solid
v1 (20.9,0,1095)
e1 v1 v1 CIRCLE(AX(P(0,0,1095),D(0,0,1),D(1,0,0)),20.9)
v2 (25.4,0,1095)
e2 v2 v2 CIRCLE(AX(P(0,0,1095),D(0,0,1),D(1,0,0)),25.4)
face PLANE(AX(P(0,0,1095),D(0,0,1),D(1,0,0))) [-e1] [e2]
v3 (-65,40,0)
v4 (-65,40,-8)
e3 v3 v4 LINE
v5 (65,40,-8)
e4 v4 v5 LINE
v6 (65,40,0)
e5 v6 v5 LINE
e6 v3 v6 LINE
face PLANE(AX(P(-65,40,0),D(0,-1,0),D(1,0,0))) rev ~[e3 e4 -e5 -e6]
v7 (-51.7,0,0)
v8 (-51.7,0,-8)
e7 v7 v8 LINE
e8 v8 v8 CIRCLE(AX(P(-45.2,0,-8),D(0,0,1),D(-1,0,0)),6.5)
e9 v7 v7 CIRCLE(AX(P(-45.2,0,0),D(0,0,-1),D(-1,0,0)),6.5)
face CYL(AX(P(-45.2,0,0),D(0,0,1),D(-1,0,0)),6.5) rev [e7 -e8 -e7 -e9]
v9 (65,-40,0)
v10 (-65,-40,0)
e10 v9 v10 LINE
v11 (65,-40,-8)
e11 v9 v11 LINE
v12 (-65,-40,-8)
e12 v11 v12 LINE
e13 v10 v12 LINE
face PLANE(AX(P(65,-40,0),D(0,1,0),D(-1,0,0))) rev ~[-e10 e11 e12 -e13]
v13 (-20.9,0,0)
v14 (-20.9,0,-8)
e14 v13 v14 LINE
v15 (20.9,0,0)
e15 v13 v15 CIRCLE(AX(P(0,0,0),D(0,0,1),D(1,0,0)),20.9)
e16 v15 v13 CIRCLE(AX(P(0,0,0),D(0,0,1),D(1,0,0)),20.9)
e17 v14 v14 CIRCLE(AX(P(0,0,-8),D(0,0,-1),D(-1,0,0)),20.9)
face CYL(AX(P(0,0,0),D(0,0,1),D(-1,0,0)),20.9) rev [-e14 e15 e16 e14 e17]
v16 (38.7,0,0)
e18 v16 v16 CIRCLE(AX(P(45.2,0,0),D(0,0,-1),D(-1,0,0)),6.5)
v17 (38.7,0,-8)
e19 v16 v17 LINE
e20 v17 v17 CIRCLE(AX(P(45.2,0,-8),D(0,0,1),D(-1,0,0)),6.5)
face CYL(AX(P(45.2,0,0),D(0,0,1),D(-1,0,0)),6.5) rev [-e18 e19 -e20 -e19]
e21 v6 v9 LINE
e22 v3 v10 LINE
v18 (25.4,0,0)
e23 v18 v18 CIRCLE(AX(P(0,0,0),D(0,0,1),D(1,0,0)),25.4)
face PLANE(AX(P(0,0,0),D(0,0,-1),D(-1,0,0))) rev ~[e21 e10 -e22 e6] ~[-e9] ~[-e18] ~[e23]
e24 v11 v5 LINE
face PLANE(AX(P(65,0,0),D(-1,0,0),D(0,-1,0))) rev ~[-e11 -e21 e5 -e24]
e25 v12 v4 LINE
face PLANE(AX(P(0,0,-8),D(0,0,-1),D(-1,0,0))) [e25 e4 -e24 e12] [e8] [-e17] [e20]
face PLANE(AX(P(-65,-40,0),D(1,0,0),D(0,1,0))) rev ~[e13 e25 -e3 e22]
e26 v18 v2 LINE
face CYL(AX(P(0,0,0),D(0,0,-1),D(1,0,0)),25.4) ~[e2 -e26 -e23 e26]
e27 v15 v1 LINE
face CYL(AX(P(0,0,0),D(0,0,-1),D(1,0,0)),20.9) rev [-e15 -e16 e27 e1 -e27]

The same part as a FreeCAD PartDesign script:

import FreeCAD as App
import Part
import Sketcher

V = App.Vector
Q = App.Units.Quantity

doc = App.newDocument("Part")
params = doc.addObject("Spreadsheet::Sheet", "Params")
for row, (alias, value) in enumerate([
    ("sketch1_diameter", "50.8 mm"),
    ("sketch1_diameter2", "41.8 mm"),
    ("pad1_length", "1095 mm"),
    ("sketch2_diameter", "13 mm"),
    ("sketch2_width", "130 mm"),
    ("sketch2_height", "80 mm"),
    ("sketch2_diameter2", "41.8 mm"),
    ("pad2_length", "8 mm"),
], start=1):
    params.set(f"A{row}", alias)
    params.set(f"B{row}", "=" + value)
    params.setAlias(f"B{row}", alias)

body = doc.addObject("PartDesign::Body", "Body")

# Sketch on XY plane
sketch1 = body.newObject("Sketcher::SketchObject", "Sketch")
sketch1.AttachmentSupport = (doc.getObject("XY_Plane"), [""])
sketch1.MapMode = "FlatFace"
sketch1.addGeometry(Part.Circle(V(0, 0, 0), V(0, 0, 1), 25.4), False)
sketch1.addGeometry(Part.Circle(V(0, 0, 0), V(0, 0, 1), 20.9), False)
sketch1.addConstraint(Sketcher.Constraint("Coincident", 0, 3, -1, 1))
sketch1.addConstraint(Sketcher.Constraint("Coincident", 1, 3, -1, 1))
sketch1.addConstraint(Sketcher.Constraint("Diameter", 0, Q("50.8 mm")))
sketch1.addConstraint(Sketcher.Constraint("Diameter", 1, Q("41.8 mm")))
sketch1.setExpression("Constraints[2]", "Params.sketch1_diameter")
sketch1.setExpression("Constraints[3]", "Params.sketch1_diameter2")
pad1 = body.newObject("PartDesign::Pad", "Pad")
pad1.Profile = sketch1
pad1.setExpression("Length", "Params.pad1_length")

# Sketch on XY plane
sketch2 = body.newObject("Sketcher::SketchObject", "Sketch001")
sketch2.AttachmentSupport = (doc.getObject("XY_Plane"), [""])
sketch2.MapMode = "FlatFace"
sketch2.addGeometry(Part.LineSegment(V(65, -40, 0), V(-65, -40, 0)), False)
sketch2.addGeometry(Part.LineSegment(V(-65, -40, 0), V(-65, 40, 0)), False)
sketch2.addGeometry(Part.LineSegment(V(-65, 40, 0), V(65, 40, 0)), False)
sketch2.addGeometry(Part.LineSegment(V(65, 40, 0), V(65, -40, 0)), False)
sketch2.addGeometry(Part.Circle(V(45.2, 0, 0), V(0, 0, 1), 6.5), False)
sketch2.addGeometry(Part.Circle(V(-45.2, 0, 0), V(0, 0, 1), 6.5), False)
sketch2.addGeometry(Part.Circle(V(0, 0, 0), V(0, 0, 1), 20.9), False)
sketch2.addConstraint(Sketcher.Constraint("Coincident", 0, 2, 1, 1))
sketch2.addConstraint(Sketcher.Constraint("Coincident", 1, 2, 2, 1))
sketch2.addConstraint(Sketcher.Constraint("Coincident", 2, 2, 3, 1))
sketch2.addConstraint(Sketcher.Constraint("Coincident", 3, 2, 0, 1))
sketch2.addConstraint(Sketcher.Constraint("Horizontal", 0))
sketch2.addConstraint(Sketcher.Constraint("Vertical", 1))
sketch2.addConstraint(Sketcher.Constraint("Horizontal", 2))
sketch2.addConstraint(Sketcher.Constraint("Vertical", 3))
sketch2.addConstraint(Sketcher.Constraint("Coincident", 6, 3, -1, 1))
sketch2.addConstraint(Sketcher.Constraint("Equal", 4, 5))
sketch2.addConstraint(Sketcher.Constraint("Symmetric", 4, 3, 5, 3, -1, 1))
sketch2.addConstraint(Sketcher.Constraint("Symmetric", 0, 2, 2, 2, -1, 1))
sketch2.addConstraint(Sketcher.Constraint("PointOnObject", 4, 3, -1))
sketch2.addConstraint(Sketcher.Constraint("Diameter", 4, Q("13 mm")))
sketch2.addConstraint(Sketcher.Constraint("DistanceX", 0, 2, 0, 1, Q("130 mm")))
sketch2.addConstraint(Sketcher.Constraint("DistanceY", 1, 1, 1, 2, Q("80 mm")))
sketch2.addConstraint(Sketcher.Constraint("Diameter", 6, Q("41.8 mm")))
sketch2.addConstraint(Sketcher.Constraint("DistanceX", -1, 1, 4, 3, Q("45.2 mm")))
sketch2.setExpression("Constraints[13]", "Params.sketch2_diameter")
sketch2.setExpression("Constraints[14]", "Params.sketch2_width")
sketch2.setExpression("Constraints[15]", "Params.sketch2_height")
sketch2.setExpression("Constraints[16]", "Params.sketch2_diameter2")
pad2 = body.newObject("PartDesign::Pad", "Pad001")
pad2.Profile = sketch2
pad2.setExpression("Length", "Params.pad2_length")
pad2.Reversed = True

doc.recompute()
